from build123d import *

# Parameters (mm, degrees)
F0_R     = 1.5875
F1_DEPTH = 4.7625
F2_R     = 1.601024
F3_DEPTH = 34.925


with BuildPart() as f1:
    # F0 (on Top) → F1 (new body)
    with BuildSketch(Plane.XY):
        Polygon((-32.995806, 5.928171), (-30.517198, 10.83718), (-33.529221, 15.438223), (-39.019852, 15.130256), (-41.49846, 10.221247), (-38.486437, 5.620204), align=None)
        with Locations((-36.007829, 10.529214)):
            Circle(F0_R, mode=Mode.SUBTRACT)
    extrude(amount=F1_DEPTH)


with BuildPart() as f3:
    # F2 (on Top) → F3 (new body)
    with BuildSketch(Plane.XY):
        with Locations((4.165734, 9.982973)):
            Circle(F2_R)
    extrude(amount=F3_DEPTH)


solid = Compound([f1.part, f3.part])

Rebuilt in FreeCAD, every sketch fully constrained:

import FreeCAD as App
import Part
import Sketcher
Q = App.Units.Quantity

doc = App.newDocument("Part")
body = doc.addObject("PartDesign::Body", "Body")

# Sketch on XY plane
sketch1 = doc.addObject("Sketcher::SketchObject", "Sketch")
body.addObject(sketch1)
sketch1.AttachmentSupport = (doc.XY_Plane, [""])
sketch1.MapMode = "FlatFace"
sketch1.addGeometry([
    Part.LineSegment(App.Vector(-33, 5.9, 0), App.Vector(-30.5, 10.8, 0)),  # 0
    Part.LineSegment(App.Vector(-30.5, 10.8, 0), App.Vector(-33.5, 15.4, 0)),  # 1
    Part.LineSegment(App.Vector(-33.5, 15.4, 0), App.Vector(-39, 15.1, 0)),  # 2
    Part.LineSegment(App.Vector(-39, 15.1, 0), App.Vector(-41.5, 10.2, 0)),  # 3
    Part.LineSegment(App.Vector(-41.5, 10.2, 0), App.Vector(-38.5, 5.6, 0)),  # 4
    Part.LineSegment(App.Vector(-38.5, 5.6, 0), App.Vector(-33, 5.9, 0)),  # 5
    Part.Circle(App.Vector(-36, 10.5, 0), App.Vector(0, 0, 1), 1.6),  # 6
], False)
sketch1.addConstraint([
    Sketcher.Constraint("Coincident", 0, 2, 1, 1),
    Sketcher.Constraint("Coincident", 1, 2, 2, 1),
    Sketcher.Constraint("Coincident", 2, 2, 3, 1),
    Sketcher.Constraint("Coincident", 3, 2, 4, 1),
    Sketcher.Constraint("Coincident", 4, 2, 5, 1),
    Sketcher.Constraint("Coincident", 5, 2, 0, 1),
    Sketcher.Constraint("Parallel", 0, 3),
    Sketcher.Constraint("Parallel", 1, 4),
    Sketcher.Constraint("Parallel", 2, 5),
    Sketcher.Constraint("Equal", 0, 1),
    Sketcher.Constraint("Equal", 1, 2),
    Sketcher.Constraint("Equal", 2, 3),
    Sketcher.Constraint("Diameter", 6, Q("0.125 in")),
    Sketcher.Constraint("DistanceX", 0, 2, -1, 1, Q("30.517198 mm")),
    Sketcher.Constraint("Distance", 0, Q("5.499261 mm")),
    Sketcher.Constraint("DistanceX", 6, 3, -1, 1, Q("36.007829 mm")),
    Sketcher.Constraint("DistanceY", -1, 1, 0, 2, Q("10.83718 mm")),
    Sketcher.Constraint("DistanceX", 1, 2, -1, 1, Q("33.529221 mm")),
    Sketcher.Constraint("DistanceX", 3, 2, -1, 1, Q("41.49846 mm")),
    Sketcher.Constraint("DistanceY", -1, 1, 5, 2, Q("5.928171 mm")),
    Sketcher.Constraint("DistanceY", 6, 3, 1, 2, Q("4.909009 mm")),
])
pad1 = doc.addObject("PartDesign::Pad", "Pad")
body.addObject(pad1)
pad1.Profile = sketch1
pad1.Length = Q("0.1875 in")
body2 = doc.addObject("PartDesign::Body", "Body001")

# Sketch on XY plane
sketch2 = doc.addObject("Sketcher::SketchObject", "Sketch001")
body2.addObject(sketch2)
sketch2.AttachmentSupport = (doc.getObject("XY_Plane001"), [""])
sketch2.MapMode = "FlatFace"
sketch2.addGeometry(Part.Circle(App.Vector(4.2, 10, 0), App.Vector(0, 0, 1), 1.6), False)
sketch2.addConstraint([
    Sketcher.Constraint("Diameter", 0, Q("3.202048 mm")),
    Sketcher.Constraint("DistanceX", -1, 1, 0, 3, Q("4.165734 mm")),
    Sketcher.Constraint("DistanceY", -1, 1, 0, 3, Q("9.982973 mm")),
])
pad2 = doc.addObject("PartDesign::Pad", "Pad001")
body2.addObject(pad2)
pad2.Profile = sketch2
pad2.Length = Q("1.375 in")

doc.recompute()
